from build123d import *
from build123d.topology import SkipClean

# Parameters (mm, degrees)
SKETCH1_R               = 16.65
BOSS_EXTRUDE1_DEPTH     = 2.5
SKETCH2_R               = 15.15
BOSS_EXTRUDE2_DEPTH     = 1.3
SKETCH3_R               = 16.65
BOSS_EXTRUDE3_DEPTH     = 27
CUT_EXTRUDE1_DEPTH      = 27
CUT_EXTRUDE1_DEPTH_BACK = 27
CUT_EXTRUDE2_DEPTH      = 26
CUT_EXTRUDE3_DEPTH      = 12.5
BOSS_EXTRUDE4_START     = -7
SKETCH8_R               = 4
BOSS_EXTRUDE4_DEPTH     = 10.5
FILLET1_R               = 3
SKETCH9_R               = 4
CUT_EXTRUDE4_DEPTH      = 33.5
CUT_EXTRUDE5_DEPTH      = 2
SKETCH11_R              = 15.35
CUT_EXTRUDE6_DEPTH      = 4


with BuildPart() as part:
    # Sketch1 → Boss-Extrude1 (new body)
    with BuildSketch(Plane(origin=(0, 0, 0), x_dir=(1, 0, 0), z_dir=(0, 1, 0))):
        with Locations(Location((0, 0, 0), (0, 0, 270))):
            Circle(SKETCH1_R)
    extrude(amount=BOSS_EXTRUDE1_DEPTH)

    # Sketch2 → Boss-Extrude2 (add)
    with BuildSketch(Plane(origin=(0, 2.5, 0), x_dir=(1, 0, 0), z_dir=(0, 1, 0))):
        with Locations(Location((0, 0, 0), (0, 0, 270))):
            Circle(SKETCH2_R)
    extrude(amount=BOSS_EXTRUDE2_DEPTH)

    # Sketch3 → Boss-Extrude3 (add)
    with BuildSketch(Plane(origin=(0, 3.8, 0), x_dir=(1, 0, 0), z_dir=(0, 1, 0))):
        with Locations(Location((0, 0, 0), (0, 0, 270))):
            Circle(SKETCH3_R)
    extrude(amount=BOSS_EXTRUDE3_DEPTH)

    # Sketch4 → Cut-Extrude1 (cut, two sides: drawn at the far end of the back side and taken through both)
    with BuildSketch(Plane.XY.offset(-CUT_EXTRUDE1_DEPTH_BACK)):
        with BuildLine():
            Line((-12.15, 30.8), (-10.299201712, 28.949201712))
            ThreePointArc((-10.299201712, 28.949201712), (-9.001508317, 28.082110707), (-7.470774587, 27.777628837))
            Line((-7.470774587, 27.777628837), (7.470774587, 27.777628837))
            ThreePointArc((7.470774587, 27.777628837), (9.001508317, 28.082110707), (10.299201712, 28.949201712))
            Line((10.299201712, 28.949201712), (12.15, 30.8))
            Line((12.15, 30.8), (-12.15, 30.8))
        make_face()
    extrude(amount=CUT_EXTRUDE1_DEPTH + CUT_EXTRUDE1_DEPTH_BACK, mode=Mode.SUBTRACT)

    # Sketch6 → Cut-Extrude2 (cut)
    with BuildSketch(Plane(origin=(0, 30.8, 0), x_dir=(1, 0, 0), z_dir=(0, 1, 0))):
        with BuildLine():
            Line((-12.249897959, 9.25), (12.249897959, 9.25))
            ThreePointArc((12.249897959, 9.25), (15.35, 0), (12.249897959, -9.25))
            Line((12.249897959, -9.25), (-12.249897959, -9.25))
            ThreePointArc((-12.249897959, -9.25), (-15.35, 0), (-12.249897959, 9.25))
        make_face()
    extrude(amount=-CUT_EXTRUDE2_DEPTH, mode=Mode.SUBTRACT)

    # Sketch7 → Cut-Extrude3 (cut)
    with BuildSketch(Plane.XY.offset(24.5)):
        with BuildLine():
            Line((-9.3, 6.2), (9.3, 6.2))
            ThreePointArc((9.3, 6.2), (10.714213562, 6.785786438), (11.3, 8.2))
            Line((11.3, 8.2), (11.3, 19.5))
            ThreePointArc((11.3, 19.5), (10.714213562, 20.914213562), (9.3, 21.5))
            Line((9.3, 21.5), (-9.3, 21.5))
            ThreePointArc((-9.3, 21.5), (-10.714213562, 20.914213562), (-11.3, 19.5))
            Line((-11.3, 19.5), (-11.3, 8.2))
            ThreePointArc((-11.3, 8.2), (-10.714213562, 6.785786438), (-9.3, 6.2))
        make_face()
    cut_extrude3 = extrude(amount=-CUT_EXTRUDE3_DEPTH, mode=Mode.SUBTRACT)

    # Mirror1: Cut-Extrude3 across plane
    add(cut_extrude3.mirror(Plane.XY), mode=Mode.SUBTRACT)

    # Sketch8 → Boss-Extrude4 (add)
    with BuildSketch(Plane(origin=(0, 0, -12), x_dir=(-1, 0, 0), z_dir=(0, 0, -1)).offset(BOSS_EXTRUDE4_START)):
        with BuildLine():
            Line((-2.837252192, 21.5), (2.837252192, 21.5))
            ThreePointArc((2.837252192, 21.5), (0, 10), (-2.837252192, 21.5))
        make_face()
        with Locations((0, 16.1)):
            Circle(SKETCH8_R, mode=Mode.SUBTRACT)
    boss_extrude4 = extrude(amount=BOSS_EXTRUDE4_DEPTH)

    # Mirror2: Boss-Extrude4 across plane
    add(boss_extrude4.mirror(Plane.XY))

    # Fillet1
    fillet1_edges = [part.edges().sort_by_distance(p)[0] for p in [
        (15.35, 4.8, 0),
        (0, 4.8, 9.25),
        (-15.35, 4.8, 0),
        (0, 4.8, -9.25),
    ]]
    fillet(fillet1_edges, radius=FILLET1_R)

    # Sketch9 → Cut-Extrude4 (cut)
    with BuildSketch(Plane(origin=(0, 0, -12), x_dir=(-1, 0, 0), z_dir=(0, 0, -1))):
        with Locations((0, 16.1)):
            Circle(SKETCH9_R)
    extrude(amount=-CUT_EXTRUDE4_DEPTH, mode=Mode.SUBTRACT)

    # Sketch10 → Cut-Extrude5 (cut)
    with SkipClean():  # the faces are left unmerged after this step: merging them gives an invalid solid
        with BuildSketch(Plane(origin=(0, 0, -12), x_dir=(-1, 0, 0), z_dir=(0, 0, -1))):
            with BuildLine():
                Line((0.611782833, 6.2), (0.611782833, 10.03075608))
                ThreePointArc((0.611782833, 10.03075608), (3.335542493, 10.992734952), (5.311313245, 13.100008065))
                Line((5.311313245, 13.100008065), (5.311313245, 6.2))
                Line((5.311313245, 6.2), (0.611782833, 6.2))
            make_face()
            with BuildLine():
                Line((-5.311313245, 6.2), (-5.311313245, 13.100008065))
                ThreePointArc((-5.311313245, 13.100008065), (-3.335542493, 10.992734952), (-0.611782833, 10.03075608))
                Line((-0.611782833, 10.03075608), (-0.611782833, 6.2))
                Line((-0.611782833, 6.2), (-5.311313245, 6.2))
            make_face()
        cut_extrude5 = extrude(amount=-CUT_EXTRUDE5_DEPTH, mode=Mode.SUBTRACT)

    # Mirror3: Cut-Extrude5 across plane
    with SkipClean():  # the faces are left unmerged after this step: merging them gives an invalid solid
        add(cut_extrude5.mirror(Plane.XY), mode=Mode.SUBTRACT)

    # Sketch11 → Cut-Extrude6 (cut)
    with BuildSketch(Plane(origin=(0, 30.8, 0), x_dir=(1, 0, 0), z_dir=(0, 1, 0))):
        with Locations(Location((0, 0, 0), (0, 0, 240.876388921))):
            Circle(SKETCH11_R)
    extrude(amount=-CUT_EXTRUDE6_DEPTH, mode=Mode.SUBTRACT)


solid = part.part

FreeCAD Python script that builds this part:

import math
import FreeCAD as App
import Part
import Sketcher
Q = App.Units.Quantity


def edges_at(feature, points):
    """Names of the edges that pass closest to the given points."""
    edges = feature.Shape.Edges
    near = lambda p: min(range(len(edges)), key=lambda i: edges[i].distToShape(Part.Vertex(*p))[0])
    return sorted({f"Edge{near(p) + 1}" for p in points})

doc = App.newDocument("Part")
body = doc.addObject("PartDesign::Body", "Body")

sketch1 = doc.addObject("Sketcher::SketchObject", "Sketch")
body.addObject(sketch1)
sketch1.AttachmentSupport = (doc.XZ_Plane, [""])
sketch1.MapMode = "FlatFace"
sketch1.addGeometry(Part.Circle(App.Vector(0, 0, 0), App.Vector(0, 0, 1), 17), False)
sketch1.addConstraint([
    Sketcher.Constraint("Coincident", 0, 3, -1, 1),
    Sketcher.Constraint("Diameter", 0, Q("33.3 mm")),
])
pad1 = doc.addObject("PartDesign::Pad", "Pad")
body.addObject(pad1)
pad1.Profile = sketch1
pad1.Length = 2.5
pad1.Reversed = True

sketch2 = doc.addObject("Sketcher::SketchObject", "Sketch001")
body.addObject(sketch2)
sketch2.AttachmentSupport = (doc.XZ_Plane, [""])
sketch2.MapMode = "FlatFace"
sketch2.AttachmentOffset = App.Placement(App.Vector(0, 0, -2.5), App.Rotation())
sketch2.addGeometry(Part.Circle(App.Vector(0, 0, 0), App.Vector(0, 0, 1), 15), False)
sketch2.addConstraint([
    Sketcher.Constraint("Coincident", 0, 3, -1, 1),
    Sketcher.Constraint("Diameter", 0, Q("30.3 mm")),
])
pad2 = doc.addObject("PartDesign::Pad", "Pad001")
body.addObject(pad2)
pad2.Profile = sketch2
pad2.Length = 1.3
pad2.Reversed = True

sketch3 = doc.addObject("Sketcher::SketchObject", "Sketch002")
body.addObject(sketch3)
sketch3.AttachmentSupport = (doc.XZ_Plane, [""])
sketch3.MapMode = "FlatFace"
sketch3.AttachmentOffset = App.Placement(App.Vector(0, 0, -3.8), App.Rotation())
sketch3.addGeometry(Part.Circle(App.Vector(0, 0, 0), App.Vector(0, 0, 1), 17), False)
sketch3.addConstraint([
    Sketcher.Constraint("Coincident", 0, 3, -1, 1),
    Sketcher.Constraint("Diameter", 0, Q("33.3 mm")),
])
pad3 = doc.addObject("PartDesign::Pad", "Pad002")
body.addObject(pad3)
pad3.Profile = sketch3
pad3.Length = 27
pad3.Reversed = True

sketch4 = doc.addObject("Sketcher::SketchObject", "Sketch003")
body.addObject(sketch4)
sketch4.AttachmentSupport = (doc.XY_Plane, [""])
sketch4.MapMode = "FlatFace"
sketch4.addGeometry([
    Part.LineSegment(App.Vector(-12.2, 30.8, 0), App.Vector(-10.3, 28.9, 0)),
    Part.ArcOfCircle(Part.Circle(App.Vector(-7.5, 31.8, 0), App.Vector(0, 0, 1), 4), math.radians(-135), math.radians(-90)),
    Part.LineSegment(App.Vector(-7.5, 27.8, 0), App.Vector(7.5, 27.8, 0)),
    Part.ArcOfCircle(Part.Circle(App.Vector(7.5, 31.8, 0), App.Vector(0, 0, 1), 4), math.radians(-90), math.radians(-45)),
    Part.LineSegment(App.Vector(10.3, 28.9, 0), App.Vector(12.2, 30.8, 0)),
    Part.LineSegment(App.Vector(12.2, 30.8, 0), App.Vector(-12.2, 30.8, 0)),
], False)
sketch4.addConstraint([
    Sketcher.Constraint("Tangent", 0, 2, 1, 1),
    Sketcher.Constraint("Tangent", 1, 2, 2, 1),
    Sketcher.Constraint("Tangent", 2, 2, 3, 1),
    Sketcher.Constraint("Tangent", 3, 2, 4, 1),
    Sketcher.Constraint("Coincident", 4, 2, 5, 1),
    Sketcher.Constraint("Coincident", 5, 2, 0, 1),
    Sketcher.Constraint("Horizontal", 2),
    Sketcher.Constraint("Horizontal", 5),
    Sketcher.Constraint("Equal", 1, 3),
    Sketcher.Constraint("Symmetric", 0, 2, 3, 2, -2),
    Sketcher.Constraint("Perpendicular", 0, 4),
    Sketcher.Constraint("Radius", 1, Q("4 mm")),
    Sketcher.Constraint("DistanceX", 5, 2, 5, 1, Q("24.3 mm")),
    Sketcher.Constraint("DistanceY", -1, 1, 4, 2, Q("30.8 mm")),
    Sketcher.Constraint("DistanceX", 2, 1, 2, 2, Q("14.941549 mm")),
])
pocket1 = doc.addObject("PartDesign::Pocket", "Pocket")
body.addObject(pocket1)
pocket1.Profile = sketch4
pocket1.Type = "ThroughAll"
pocket1.Midplane = True

sketch5 = doc.addObject("Sketcher::SketchObject", "Sketch004")
body.addObject(sketch5)
sketch5.AttachmentSupport = (doc.XZ_Plane, [""])
sketch5.MapMode = "FlatFace"
sketch5.AttachmentOffset = App.Placement(App.Vector(0, 0, -30.8), App.Rotation())
sketch5.addGeometry([
    Part.LineSegment(App.Vector(12, -9, 0), App.Vector(-12, -9, 0)),
    Part.ArcOfCircle(Part.Circle(App.Vector(0, 0, 0), App.Vector(0, 0, 1), 15), math.radians(143), math.radians(217)),
    Part.LineSegment(App.Vector(-12, 9, 0), App.Vector(12, 9, 0)),
    Part.ArcOfCircle(Part.Circle(App.Vector(0, 0, 0), App.Vector(0, 0, 1), 15), math.radians(-37), math.radians(37)),
], False)
sketch5.addConstraint([
    Sketcher.Constraint("Coincident", 0, 2, 1, 2),
    Sketcher.Constraint("Coincident", 1, 1, 2, 1),
    Sketcher.Constraint("Coincident", 2, 2, 3, 2),
    Sketcher.Constraint("Coincident", 3, 1, 0, 1),
    Sketcher.Constraint("Horizontal", 0),
    Sketcher.Constraint("Horizontal", 2),
    Sketcher.Constraint("Coincident", 1, 3, -1, 1),
    Sketcher.Constraint("Coincident", 3, 3, -1, 1),
    Sketcher.Constraint("Equal", 1, 3),
    Sketcher.Constraint("Vertical", 0, 2, 1, 1),
    Sketcher.Constraint("Radius", 1, Q("15.35 mm")),
    Sketcher.Constraint("DistanceY", 0, 2, 1, 1, Q("18.5 mm")),
])
pocket2 = doc.addObject("PartDesign::Pocket", "Pocket001")
body.addObject(pocket2)
pocket2.Profile = sketch5
pocket2.Length = 26
pocket2.Reversed = True

sketch6 = doc.addObject("Sketcher::SketchObject", "Sketch005")
body.addObject(sketch6)
sketch6.AttachmentSupport = (doc.XY_Plane, [""])
sketch6.MapMode = "FlatFace"
sketch6.AttachmentOffset = App.Placement(App.Vector(0, 0, 24.5), App.Rotation())
sketch6.addGeometry([
    Part.LineSegment(App.Vector(-9.3, 6.2, 0), App.Vector(9.3, 6.2, 0)),
    Part.ArcOfCircle(Part.Circle(App.Vector(9.3, 8.2, 0), App.Vector(0, 0, 1), 2), math.radians(-90), math.radians(0)),
    Part.LineSegment(App.Vector(11.3, 8.2, 0), App.Vector(11.3, 19.5, 0)),
    Part.ArcOfCircle(Part.Circle(App.Vector(9.3, 19.5, 0), App.Vector(0, 0, 1), 2), math.radians(0), math.radians(90)),
    Part.LineSegment(App.Vector(9.3, 21.5, 0), App.Vector(-9.3, 21.5, 0)),
    Part.ArcOfCircle(Part.Circle(App.Vector(-9.3, 19.5, 0), App.Vector(0, 0, 1), 2), math.radians(90), math.radians(180)),
    Part.LineSegment(App.Vector(-11.3, 19.5, 0), App.Vector(-11.3, 8.2, 0)),
    Part.ArcOfCircle(Part.Circle(App.Vector(-9.3, 8.2, 0), App.Vector(0, 0, 1), 2), math.radians(-180), math.radians(-90)),
], False)
sketch6.addConstraint([
    Sketcher.Constraint("Tangent", 0, 2, 1, 1),
    Sketcher.Constraint("Tangent", 1, 2, 2, 1),
    Sketcher.Constraint("Tangent", 2, 2, 3, 1),
    Sketcher.Constraint("Tangent", 3, 2, 4, 1),
    Sketcher.Constraint("Tangent", 4, 2, 5, 1),
    Sketcher.Constraint("Tangent", 5, 2, 6, 1),
    Sketcher.Constraint("Tangent", 6, 2, 7, 1),
    Sketcher.Constraint("Tangent", 7, 2, 0, 1),
    Sketcher.Constraint("Horizontal", 0),
    Sketcher.Constraint("Vertical", 2),
    Sketcher.Constraint("Horizontal", 4),
    Sketcher.Constraint("Vertical", 6),
    Sketcher.Constraint("Equal", 1, 3),
    Sketcher.Constraint("Equal", 3, 5),
    Sketcher.Constraint("Equal", 5, 7),
    Sketcher.Constraint("Radius", 1, Q("2 mm")),
    Sketcher.Constraint("DistanceX", 0, 1, 0, 2, Q("18.6 mm")),
    Sketcher.Constraint("DistanceY", 2, 1, 2, 2, Q("11.3 mm")),
    Sketcher.Constraint("DistanceX", -1, 1, 1, 3, Q("9.3 mm")),
    Sketcher.Constraint("DistanceY", -1, 1, 1, 3, Q("8.2 mm")),
])
pocket3 = doc.addObject("PartDesign::Pocket", "Pocket002")
body.addObject(pocket3)
pocket3.Profile = sketch6
pocket3.Length = 12.5
doc.recompute()

mirrored = doc.addObject("PartDesign::Mirrored", "Mirrored")
body.addObject(mirrored)
mirrored.Originals = [pocket3]
mirrored.MirrorPlane = (doc.XY_Plane, [""])
body.Tip = mirrored

sketch7 = doc.addObject("Sketcher::SketchObject", "Sketch006")
body.addObject(sketch7)
sketch7.AttachmentSupport = (doc.XY_Plane, [""])
sketch7.MapMode = "FlatFace"
sketch7.AttachmentOffset = App.Placement(App.Vector(0, 0, -5), App.Rotation())
sketch7.addGeometry([
    Part.LineSegment(App.Vector(-2.8, 21.5, 0), App.Vector(2.8, 21.5, 0)),
    Part.ArcOfCircle(Part.Circle(App.Vector(0, 16.1, 0), App.Vector(0, 0, 1), 6.1), math.radians(118), math.radians(422)),
    Part.Circle(App.Vector(0, 16.1, 0), App.Vector(0, 0, 1), 4),
], False)
sketch7.addConstraint([
    Sketcher.Constraint("Coincident", 0, 1, 1, 1),
    Sketcher.Constraint("Coincident", 1, 2, 0, 2),
    Sketcher.Constraint("Horizontal", 0),
    Sketcher.Constraint("Coincident", 2, 3, 1, 3),
    Sketcher.Constraint("PointOnObject", 1, 3, -2),
    Sketcher.Constraint("Diameter", 2, Q("8 mm")),
    Sketcher.Constraint("Radius", 1, Q("6.1 mm")),
    Sketcher.Constraint("DistanceY", -1, 1, 1, 3, Q("16.1 mm")),
    Sketcher.Constraint("DistanceY", -1, 1, 0, 1, Q("21.5 mm")),
])
pad4 = doc.addObject("PartDesign::Pad", "Pad003")
body.addObject(pad4)
pad4.Profile = sketch7
pad4.Length = 10.5
pad4.Reversed = True
doc.recompute()

mirrored2 = doc.addObject("PartDesign::Mirrored", "Mirrored001")
body.addObject(mirrored2)
mirrored2.Originals = [pad4]
mirrored2.MirrorPlane = (doc.XY_Plane, [""])
body.Tip = mirrored2
doc.recompute()

fillet = doc.addObject("PartDesign::Fillet", "Fillet")
body.addObject(fillet)
fillet.Base = (mirrored2, edges_at(mirrored2, [
    (15.35, 4.8, 0),
    (0, 4.8, 9.25),
    (-15.35, 4.8, 0),
    (0, 4.8, -9.25),
]))
fillet.Radius = 3

sketch8 = doc.addObject("Sketcher::SketchObject", "Sketch007")
body.addObject(sketch8)
sketch8.AttachmentSupport = (doc.XY_Plane, [""])
sketch8.MapMode = "FlatFace"
sketch8.AttachmentOffset = App.Placement(App.Vector(0, 0, -12), App.Rotation())
sketch8.addGeometry(Part.Circle(App.Vector(0, 16.1, 0), App.Vector(0, 0, 1), 4), False)
sketch8.addConstraint([
    Sketcher.Constraint("PointOnObject", 0, 3, -2),
    Sketcher.Constraint("Diameter", 0, Q("8 mm")),
    Sketcher.Constraint("DistanceY", -1, 1, 0, 3, Q("16.1 mm")),
])
pocket4 = doc.addObject("PartDesign::Pocket", "Pocket003")
body.addObject(pocket4)
pocket4.Profile = sketch8
pocket4.Length = 33.5
pocket4.Reversed = True

sketch9 = doc.addObject("Sketcher::SketchObject", "Sketch008")
body.addObject(sketch9)
sketch9.AttachmentSupport = (doc.XY_Plane, [""])
sketch9.MapMode = "FlatFace"
sketch9.AttachmentOffset = App.Placement(App.Vector(0, 0, -12), App.Rotation())
sketch9.addGeometry([
    Part.LineSegment(App.Vector(-0.6, 10, 0), App.Vector(-0.6, 6.2, 0)),
    Part.LineSegment(App.Vector(-0.6, 6.2, 0), App.Vector(-5.3, 6.2, 0)),
    Part.LineSegment(App.Vector(-5.3, 6.2, 0), App.Vector(-5.3, 13.1, 0)),
    Part.ArcOfCircle(Part.Circle(App.Vector(0, 16.1, 0), App.Vector(0, 0, 1), 6.1), math.radians(-151), math.radians(-96)),
    Part.LineSegment(App.Vector(5.3, 13.1, 0), App.Vector(5.3, 6.2, 0)),
    Part.LineSegment(App.Vector(5.3, 6.2, 0), App.Vector(0.6, 6.2, 0)),
    Part.LineSegment(App.Vector(0.6, 6.2, 0), App.Vector(0.6, 10, 0)),
    Part.ArcOfCircle(Part.Circle(App.Vector(0, 16.1, 0), App.Vector(0, 0, 1), 6.1), math.radians(-84), math.radians(-29)),
], False)
sketch9.addConstraint([
    Sketcher.Constraint("Coincident", 0, 2, 1, 1),
    Sketcher.Constraint("Coincident", 1, 2, 2, 1),
    Sketcher.Constraint("Coincident", 2, 2, 3, 1),
    Sketcher.Constraint("Coincident", 3, 2, 0, 1),
    Sketcher.Constraint("Coincident", 4, 2, 5, 1),
    Sketcher.Constraint("Coincident", 5, 2, 6, 1),
    Sketcher.Constraint("Coincident", 6, 2, 7, 1),
    Sketcher.Constraint("Coincident", 7, 2, 4, 1),
    Sketcher.Constraint("Vertical", 0),
    Sketcher.Constraint("Horizontal", 1),
    Sketcher.Constraint("Vertical", 2),
    Sketcher.Constraint("Vertical", 4),
    Sketcher.Constraint("Horizontal", 5),
    Sketcher.Constraint("Vertical", 6),
    Sketcher.Constraint("Coincident", 7, 3, 3, 3),
    Sketcher.Constraint("Equal", 3, 7),
    Sketcher.Constraint("Symmetric", 1, 2, 4, 2, -2),
    Sketcher.Constraint("Symmetric", 3, 2, 6, 2, -2),
    Sketcher.Constraint("Radius", 3, Q("6.1 mm")),
    Sketcher.Constraint("DistanceY", -1, 1, 3, 3, Q("16.1 mm")),
    Sketcher.Constraint("DistanceY", -1, 1, 0, 2, Q("6.2 mm")),
    Sketcher.Constraint("DistanceX", 1, 2, 1, 1, Q("4.69953 mm")),
    Sketcher.Constraint("DistanceY", 2, 1, 2, 2, Q("6.900008 mm")),
])
pocket5 = doc.addObject("PartDesign::Pocket", "Pocket004")
body.addObject(pocket5)
pocket5.Profile = sketch9
pocket5.Length = 2
pocket5.Reversed = True
doc.recompute()

mirrored3 = doc.addObject("PartDesign::Mirrored", "Mirrored002")
body.addObject(mirrored3)
mirrored3.Originals = [pocket5]
mirrored3.MirrorPlane = (doc.XY_Plane, [""])
body.Tip = mirrored3

sketch10 = doc.addObject("Sketcher::SketchObject", "Sketch009")
body.addObject(sketch10)
sketch10.AttachmentSupport = (doc.XZ_Plane, [""])
sketch10.MapMode = "FlatFace"
sketch10.AttachmentOffset = App.Placement(App.Vector(0, 0, -30.8), App.Rotation())
sketch10.addGeometry(Part.Circle(App.Vector(0, 0, 0), App.Vector(0, 0, 1), 15), False)
sketch10.addConstraint([
    Sketcher.Constraint("Coincident", 0, 3, -1, 1),
    Sketcher.Constraint("Diameter", 0, Q("30.7 mm")),
])
pocket6 = doc.addObject("PartDesign::Pocket", "Pocket005")
body.addObject(pocket6)
pocket6.Profile = sketch10
pocket6.Length = 4
pocket6.Reversed = True

doc.recompute()
